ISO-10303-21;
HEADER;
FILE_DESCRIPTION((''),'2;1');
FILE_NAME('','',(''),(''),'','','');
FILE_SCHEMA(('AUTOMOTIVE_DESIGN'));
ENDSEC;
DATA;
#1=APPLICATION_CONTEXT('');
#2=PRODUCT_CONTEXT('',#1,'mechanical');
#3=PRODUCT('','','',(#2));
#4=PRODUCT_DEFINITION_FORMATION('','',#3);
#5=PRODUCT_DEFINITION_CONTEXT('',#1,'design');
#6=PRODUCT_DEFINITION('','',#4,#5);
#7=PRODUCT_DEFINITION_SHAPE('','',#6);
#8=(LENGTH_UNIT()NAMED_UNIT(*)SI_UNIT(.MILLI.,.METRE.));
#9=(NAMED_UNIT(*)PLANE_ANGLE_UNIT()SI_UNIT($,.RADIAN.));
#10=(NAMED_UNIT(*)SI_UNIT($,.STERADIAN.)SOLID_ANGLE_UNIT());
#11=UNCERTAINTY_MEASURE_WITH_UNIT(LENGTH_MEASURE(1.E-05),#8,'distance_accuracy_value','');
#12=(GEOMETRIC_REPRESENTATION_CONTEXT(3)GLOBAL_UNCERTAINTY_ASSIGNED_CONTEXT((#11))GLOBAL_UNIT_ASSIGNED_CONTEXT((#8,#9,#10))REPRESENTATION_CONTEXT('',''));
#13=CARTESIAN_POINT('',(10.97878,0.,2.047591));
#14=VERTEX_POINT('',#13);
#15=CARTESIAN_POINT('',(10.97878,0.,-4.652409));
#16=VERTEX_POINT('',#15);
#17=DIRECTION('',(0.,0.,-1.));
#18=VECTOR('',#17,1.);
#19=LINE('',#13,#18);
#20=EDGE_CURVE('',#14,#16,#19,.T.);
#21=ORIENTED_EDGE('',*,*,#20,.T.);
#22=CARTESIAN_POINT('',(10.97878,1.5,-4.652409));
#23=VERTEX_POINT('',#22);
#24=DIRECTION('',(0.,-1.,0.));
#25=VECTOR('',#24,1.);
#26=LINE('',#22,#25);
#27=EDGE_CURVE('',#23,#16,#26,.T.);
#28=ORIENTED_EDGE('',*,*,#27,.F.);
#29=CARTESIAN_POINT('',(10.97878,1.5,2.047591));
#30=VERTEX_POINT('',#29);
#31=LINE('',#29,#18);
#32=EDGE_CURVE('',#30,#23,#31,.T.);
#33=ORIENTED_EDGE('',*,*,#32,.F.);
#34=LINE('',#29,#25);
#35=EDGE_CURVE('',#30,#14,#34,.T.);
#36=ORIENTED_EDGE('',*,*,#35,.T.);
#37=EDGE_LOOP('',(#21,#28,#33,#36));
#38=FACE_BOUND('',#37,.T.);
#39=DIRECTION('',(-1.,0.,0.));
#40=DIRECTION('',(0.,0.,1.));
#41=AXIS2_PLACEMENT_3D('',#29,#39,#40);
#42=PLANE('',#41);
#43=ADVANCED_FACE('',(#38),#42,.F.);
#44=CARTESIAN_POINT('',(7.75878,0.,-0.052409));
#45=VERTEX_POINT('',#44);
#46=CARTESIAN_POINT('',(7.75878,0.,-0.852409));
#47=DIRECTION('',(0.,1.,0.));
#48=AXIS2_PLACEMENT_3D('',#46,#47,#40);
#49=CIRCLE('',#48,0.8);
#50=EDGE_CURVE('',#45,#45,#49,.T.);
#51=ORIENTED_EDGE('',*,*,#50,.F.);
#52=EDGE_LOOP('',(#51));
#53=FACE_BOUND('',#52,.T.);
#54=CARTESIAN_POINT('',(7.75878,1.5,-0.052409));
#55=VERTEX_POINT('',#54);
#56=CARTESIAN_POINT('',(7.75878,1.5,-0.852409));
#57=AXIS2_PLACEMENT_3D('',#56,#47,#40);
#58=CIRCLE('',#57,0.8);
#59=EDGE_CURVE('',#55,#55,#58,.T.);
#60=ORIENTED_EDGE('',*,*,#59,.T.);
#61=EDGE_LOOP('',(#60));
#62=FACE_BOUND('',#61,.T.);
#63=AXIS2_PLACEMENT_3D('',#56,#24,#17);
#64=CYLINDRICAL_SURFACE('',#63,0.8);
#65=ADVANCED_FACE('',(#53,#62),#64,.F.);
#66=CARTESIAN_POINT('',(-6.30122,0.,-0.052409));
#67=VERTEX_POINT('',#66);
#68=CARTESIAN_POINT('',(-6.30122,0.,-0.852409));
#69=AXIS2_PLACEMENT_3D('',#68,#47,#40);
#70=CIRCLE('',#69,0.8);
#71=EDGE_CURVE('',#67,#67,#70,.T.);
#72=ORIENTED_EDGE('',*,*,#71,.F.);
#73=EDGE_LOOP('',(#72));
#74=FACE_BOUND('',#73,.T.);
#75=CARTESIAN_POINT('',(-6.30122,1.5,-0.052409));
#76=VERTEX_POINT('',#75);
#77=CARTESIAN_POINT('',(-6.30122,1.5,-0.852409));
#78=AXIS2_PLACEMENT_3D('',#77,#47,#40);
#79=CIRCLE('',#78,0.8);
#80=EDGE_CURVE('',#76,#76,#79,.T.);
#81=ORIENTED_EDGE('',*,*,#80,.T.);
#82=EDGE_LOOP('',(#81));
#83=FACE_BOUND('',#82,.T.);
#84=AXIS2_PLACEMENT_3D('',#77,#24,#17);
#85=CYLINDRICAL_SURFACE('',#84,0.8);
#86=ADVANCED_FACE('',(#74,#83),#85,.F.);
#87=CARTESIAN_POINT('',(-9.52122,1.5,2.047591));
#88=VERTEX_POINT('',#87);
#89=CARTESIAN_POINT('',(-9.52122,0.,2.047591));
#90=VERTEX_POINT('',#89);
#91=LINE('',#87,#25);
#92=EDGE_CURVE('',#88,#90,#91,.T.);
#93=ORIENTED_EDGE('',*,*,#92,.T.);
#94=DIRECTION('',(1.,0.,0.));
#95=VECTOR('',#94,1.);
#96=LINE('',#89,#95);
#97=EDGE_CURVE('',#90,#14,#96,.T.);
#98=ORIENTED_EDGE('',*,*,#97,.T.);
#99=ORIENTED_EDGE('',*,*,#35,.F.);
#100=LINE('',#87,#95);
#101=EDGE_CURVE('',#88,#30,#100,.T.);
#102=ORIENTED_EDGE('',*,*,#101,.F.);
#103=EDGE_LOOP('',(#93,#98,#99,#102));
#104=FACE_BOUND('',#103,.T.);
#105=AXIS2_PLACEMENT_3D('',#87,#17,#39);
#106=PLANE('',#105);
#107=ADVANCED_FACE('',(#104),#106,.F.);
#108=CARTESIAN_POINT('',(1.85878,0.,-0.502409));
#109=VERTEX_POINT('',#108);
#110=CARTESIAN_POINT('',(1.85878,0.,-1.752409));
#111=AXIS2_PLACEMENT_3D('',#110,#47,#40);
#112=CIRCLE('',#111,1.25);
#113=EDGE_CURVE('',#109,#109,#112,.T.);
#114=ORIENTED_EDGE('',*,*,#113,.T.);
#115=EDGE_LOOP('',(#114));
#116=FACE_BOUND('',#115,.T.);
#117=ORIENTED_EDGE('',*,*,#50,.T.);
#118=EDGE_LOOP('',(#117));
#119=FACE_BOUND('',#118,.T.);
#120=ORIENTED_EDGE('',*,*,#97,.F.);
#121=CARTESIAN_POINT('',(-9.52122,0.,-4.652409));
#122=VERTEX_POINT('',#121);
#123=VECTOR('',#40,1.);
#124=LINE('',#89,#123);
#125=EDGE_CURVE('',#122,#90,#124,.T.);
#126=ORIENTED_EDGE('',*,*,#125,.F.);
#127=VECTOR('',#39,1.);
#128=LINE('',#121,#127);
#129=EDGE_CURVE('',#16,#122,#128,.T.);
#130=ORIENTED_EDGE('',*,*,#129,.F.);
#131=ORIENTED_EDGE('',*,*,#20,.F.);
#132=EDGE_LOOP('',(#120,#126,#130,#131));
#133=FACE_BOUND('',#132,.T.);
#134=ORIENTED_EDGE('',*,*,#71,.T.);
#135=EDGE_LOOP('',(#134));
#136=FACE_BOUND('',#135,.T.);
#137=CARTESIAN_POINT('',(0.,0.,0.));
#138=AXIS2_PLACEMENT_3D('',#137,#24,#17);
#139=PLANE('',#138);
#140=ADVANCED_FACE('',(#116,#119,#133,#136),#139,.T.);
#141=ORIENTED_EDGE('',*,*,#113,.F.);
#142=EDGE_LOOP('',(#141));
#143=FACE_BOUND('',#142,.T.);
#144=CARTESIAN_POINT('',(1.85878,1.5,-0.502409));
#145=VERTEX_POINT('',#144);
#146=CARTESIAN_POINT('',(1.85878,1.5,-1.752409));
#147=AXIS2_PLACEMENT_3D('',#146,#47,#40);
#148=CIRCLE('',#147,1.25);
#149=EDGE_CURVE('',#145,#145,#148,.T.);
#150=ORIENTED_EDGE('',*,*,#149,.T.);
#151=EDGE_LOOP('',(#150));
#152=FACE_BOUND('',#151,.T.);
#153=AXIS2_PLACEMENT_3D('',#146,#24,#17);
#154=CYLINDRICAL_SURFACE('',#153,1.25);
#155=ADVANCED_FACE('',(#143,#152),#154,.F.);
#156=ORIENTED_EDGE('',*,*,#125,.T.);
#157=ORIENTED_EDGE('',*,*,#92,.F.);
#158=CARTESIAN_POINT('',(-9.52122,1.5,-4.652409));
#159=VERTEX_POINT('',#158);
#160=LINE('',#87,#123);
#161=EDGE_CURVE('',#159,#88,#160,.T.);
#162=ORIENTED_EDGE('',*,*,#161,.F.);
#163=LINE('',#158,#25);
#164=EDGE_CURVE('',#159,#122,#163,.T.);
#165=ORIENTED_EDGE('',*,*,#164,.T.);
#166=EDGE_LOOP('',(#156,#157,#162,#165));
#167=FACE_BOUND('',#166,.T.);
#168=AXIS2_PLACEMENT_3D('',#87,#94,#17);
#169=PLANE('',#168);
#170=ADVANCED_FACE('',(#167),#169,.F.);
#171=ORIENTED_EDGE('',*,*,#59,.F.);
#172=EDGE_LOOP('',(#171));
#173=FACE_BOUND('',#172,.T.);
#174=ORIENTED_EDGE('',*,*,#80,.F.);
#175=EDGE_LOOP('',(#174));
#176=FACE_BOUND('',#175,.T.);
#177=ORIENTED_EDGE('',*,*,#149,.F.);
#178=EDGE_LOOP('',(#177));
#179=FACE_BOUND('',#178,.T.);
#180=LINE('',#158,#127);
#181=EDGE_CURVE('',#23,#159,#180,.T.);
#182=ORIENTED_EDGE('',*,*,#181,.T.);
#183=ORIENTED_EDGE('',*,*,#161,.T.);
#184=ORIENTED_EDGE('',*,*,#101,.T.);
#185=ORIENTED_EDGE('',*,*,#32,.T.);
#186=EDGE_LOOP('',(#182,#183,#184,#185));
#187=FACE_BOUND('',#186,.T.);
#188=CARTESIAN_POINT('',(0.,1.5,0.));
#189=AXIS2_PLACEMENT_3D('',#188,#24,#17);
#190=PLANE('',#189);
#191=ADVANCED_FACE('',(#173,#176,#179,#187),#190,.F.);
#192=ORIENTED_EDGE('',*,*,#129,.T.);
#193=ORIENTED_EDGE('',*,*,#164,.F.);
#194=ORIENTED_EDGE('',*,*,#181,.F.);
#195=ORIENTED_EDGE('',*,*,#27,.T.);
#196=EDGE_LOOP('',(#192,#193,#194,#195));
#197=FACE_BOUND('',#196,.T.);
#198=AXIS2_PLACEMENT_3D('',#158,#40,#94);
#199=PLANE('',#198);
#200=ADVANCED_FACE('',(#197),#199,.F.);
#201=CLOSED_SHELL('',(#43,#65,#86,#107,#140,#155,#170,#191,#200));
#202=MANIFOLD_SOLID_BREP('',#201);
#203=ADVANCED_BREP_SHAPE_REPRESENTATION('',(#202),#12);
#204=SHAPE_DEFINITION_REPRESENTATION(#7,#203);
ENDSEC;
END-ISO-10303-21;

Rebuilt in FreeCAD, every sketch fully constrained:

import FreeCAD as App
import Part
import Sketcher
Q = App.Units.Quantity


def add_polygon(sketch, points):
    """Adds a closed chain of lines whose ends are joined by coincident constraints."""
    first, n = sketch.GeometryCount, len(points)
    for a, b in zip(points, points[1:] + points[:1]):
        sketch.addGeometry(Part.LineSegment(App.Vector(*a, 0), App.Vector(*b, 0)), False)
    for i in range(n):
        sketch.addConstraint(Sketcher.Constraint("Coincident", first + i, 2, first + (i + 1) % n, 1))

doc = App.newDocument("Part")
params = doc.addObject("Spreadsheet::Sheet", "Params")
for row, (alias, value) in enumerate([
    ("sketch1_diameter", "1.6 mm"),
    ("sketch1_diameter2", "2.5 mm"),
    ("sketch1_width", "20.5 mm"),
    ("sketch1_height", "6.7 mm"),
    ("pad1_length", "1.5 mm"),
], start=1):
    params.set(f"A{row}", alias)
    params.set(f"B{row}", "=" + value)
    params.setAlias(f"B{row}", alias)

body = doc.addObject("PartDesign::Body", "Body")

# Sketch on XZ plane
sketch1 = body.newObject("Sketcher::SketchObject", "Sketch")
sketch1.AttachmentSupport = (doc.getObject("XZ_Plane"), [""])
sketch1.MapMode = "FlatFace"
add_polygon(sketch1, [(-9.52122, -4.652409), (-9.52122, 2.047591), (10.97878, 2.047591), (10.97878, -4.652409)])  # lines 0-3
sketch1.addGeometry(Part.Circle(App.Vector(-6.30122, -0.852409, 0), App.Vector(0, 0, 1), 0.8), False)  # 4
sketch1.addGeometry(Part.Circle(App.Vector(7.75878, -0.852409, 0), App.Vector(0, 0, 1), 0.8), False)  # 5
sketch1.addGeometry(Part.Circle(App.Vector(1.85878, -1.752409, 0), App.Vector(0, 0, 1), 1.25), False)  # 6
sketch1.addConstraint(Sketcher.Constraint("Vertical", 0))
sketch1.addConstraint(Sketcher.Constraint("Horizontal", 1))
sketch1.addConstraint(Sketcher.Constraint("Vertical", 2))
sketch1.addConstraint(Sketcher.Constraint("Horizontal", 3))
sketch1.addConstraint(Sketcher.Constraint("Equal", 4, 5))
sketch1.addConstraint(Sketcher.Constraint("Horizontal", 4, 3, 5, 3))
sketch1.addConstraint(Sketcher.Constraint("Diameter", 4, Q("1.6 mm")))
sketch1.addConstraint(Sketcher.Constraint("Diameter", 6, Q("2.5 mm")))
sketch1.addConstraint(Sketcher.Constraint("DistanceX", 1, 1, 1, 2, Q("20.5 mm")))
sketch1.addConstraint(Sketcher.Constraint("DistanceY", 0, 1, 0, 2, Q("6.7 mm")))
sketch1.addConstraint(Sketcher.Constraint("DistanceX", 6, 3, 5, 3, Q("5.9 mm")))
sketch1.addConstraint(Sketcher.Constraint("DistanceY", 6, 3, 5, 3, Q("0.9 mm")))
sketch1.addConstraint(Sketcher.Constraint("DistanceY", 4, 3, 0, 2, Q("2.9 mm")))
sketch1.addConstraint(Sketcher.Constraint("DistanceX", 4, 3, 5, 3, Q("14.06 mm")))
sketch1.addConstraint(Sketcher.Constraint("DistanceX", 0, 2, 4, 3, Q("3.22 mm")))
sketch1.addConstraint(Sketcher.Constraint("DistanceX", 4, 3, -1, 1, Q("6.30122 mm")))
sketch1.addConstraint(Sketcher.Constraint("DistanceY", 4, 3, -1, 1, Q("0.852409 mm")))
sketch1.setExpression("Constraints[10]", "Params.sketch1_diameter")
sketch1.setExpression("Constraints[11]", "Params.sketch1_diameter2")
sketch1.setExpression("Constraints[12]", "Params.sketch1_width")
sketch1.setExpression("Constraints[13]", "Params.sketch1_height")
pad1 = body.newObject("PartDesign::Pad", "Pad")
pad1.Profile = sketch1
pad1.setExpression("Length", "Params.pad1_length")
pad1.Reversed = True

doc.recompute()
